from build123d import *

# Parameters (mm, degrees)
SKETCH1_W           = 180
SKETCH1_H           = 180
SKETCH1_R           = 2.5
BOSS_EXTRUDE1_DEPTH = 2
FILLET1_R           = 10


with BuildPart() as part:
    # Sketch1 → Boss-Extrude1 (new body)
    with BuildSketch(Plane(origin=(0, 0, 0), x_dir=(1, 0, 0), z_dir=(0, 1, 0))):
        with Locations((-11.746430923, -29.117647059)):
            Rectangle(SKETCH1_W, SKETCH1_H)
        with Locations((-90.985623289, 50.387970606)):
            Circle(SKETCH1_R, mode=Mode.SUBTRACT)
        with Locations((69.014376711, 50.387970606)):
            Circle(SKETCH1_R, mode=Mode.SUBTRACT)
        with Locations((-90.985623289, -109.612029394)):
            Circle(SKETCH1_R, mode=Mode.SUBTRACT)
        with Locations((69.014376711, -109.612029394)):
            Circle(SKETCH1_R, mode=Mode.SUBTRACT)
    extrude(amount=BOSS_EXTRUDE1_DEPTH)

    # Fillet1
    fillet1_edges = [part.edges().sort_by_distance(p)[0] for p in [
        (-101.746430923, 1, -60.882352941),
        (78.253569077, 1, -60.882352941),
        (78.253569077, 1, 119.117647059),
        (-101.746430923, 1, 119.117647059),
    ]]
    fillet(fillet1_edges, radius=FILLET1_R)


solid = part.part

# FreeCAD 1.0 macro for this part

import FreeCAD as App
import Part
import Sketcher
from FreeCAD import Vector
Q = App.Units.Quantity


def edges_at(feature, points):
    """Names of the edges that pass closest to the given points."""
    edges = feature.Shape.Edges
    near = lambda p: min(range(len(edges)), key=lambda i: edges[i].distToShape(Part.Vertex(*p))[0])
    return sorted({f"Edge{near(p) + 1}" for p in points})


def add_polygon(sketch, points):
    """Adds a closed chain of lines whose ends are joined by coincident constraints."""
    first, n = sketch.GeometryCount, len(points)
    for a, b in zip(points, points[1:] + points[:1]):
        sketch.addGeometry(Part.LineSegment(App.Vector(*a, 0), App.Vector(*b, 0)), False)
    for i in range(n):
        sketch.addConstraint(Sketcher.Constraint("Coincident", first + i, 2, first + (i + 1) % n, 1))

doc = App.newDocument("Part")
params = doc.addObject("Spreadsheet::Sheet", "Params")
for row, (alias, value) in enumerate([
    ("sketch1_diameter", "5 mm"),
    ("sketch1_width", "180 mm"),
    ("pad1_length", "2 mm"),
    ("fillet_radius", "10 mm"),
], start=1):
    params.set(f"A{row}", alias)
    params.set(f"B{row}", "=" + value)
    params.setAlias(f"B{row}", alias)

body = doc.addObject("PartDesign::Body", "Body")

# Sketch on XZ plane
sketch1 = body.newObject("Sketcher::SketchObject", "Sketch")
sketch1.AttachmentSupport = (doc.getObject("XZ_Plane"), [""])
sketch1.MapMode = "FlatFace"
add_polygon(sketch1, [(-101.746431, -60.882353), (-101.746431, 119.117647), (78.253569, 119.117647), (78.253569, -60.882353)])  # lines 0-3
sketch1.addGeometry(Part.Circle(Vector(-90.985623, 109.612029, 0), Vector(0, 0, 1), 2.5), False)  # 4
sketch1.addGeometry(Part.Circle(Vector(69.014377, 109.612029, 0), Vector(0, 0, 1), 2.5), False)  # 5
sketch1.addGeometry(Part.Circle(Vector(-90.985623, -50.387971, 0), Vector(0, 0, 1), 2.5), False)  # 6
sketch1.addGeometry(Part.Circle(Vector(69.014377, -50.387971, 0), Vector(0, 0, 1), 2.5), False)  # 7
sketch1.addConstraint([
    Sketcher.Constraint("Vertical", 0),
    Sketcher.Constraint("Horizontal", 1),
    Sketcher.Constraint("Vertical", 2),
    Sketcher.Constraint("Horizontal", 3),
    Sketcher.Constraint("Equal", 4, 5),
    Sketcher.Constraint("Equal", 5, 6),
    Sketcher.Constraint("Equal", 6, 7),
    Sketcher.Constraint("Horizontal", 4, 3, 5, 3),
    Sketcher.Constraint("Horizontal", 6, 3, 7, 3),
    Sketcher.Constraint("Vertical", 4, 3, 6, 3),
    Sketcher.Constraint("Vertical", 5, 3, 7, 3),
    Sketcher.Constraint("Equal", 3, 0),
    Sketcher.Constraint("Diameter", 4, Q("5 mm")),
    Sketcher.Constraint("DistanceX", 1, 1, 1, 2, Q("180 mm")),
    Sketcher.Constraint("DistanceX", 4, 3, 5, 3, Q("160 mm")),
    Sketcher.Constraint("DistanceY", 6, 3, 4, 3, Q("160 mm")),
    Sketcher.Constraint("DistanceY", -1, 1, 4, 3, Q("109.612029 mm")),
    Sketcher.Constraint("DistanceX", 0, 2, -1, 1, Q("101.746431 mm")),
    Sketcher.Constraint("DistanceX", 4, 3, -1, 1, Q("90.985623 mm")),
    Sketcher.Constraint("DistanceY", -1, 1, 0, 2, Q("119.117647 mm")),
])
sketch1.setExpression("Constraints[16]", "Params.sketch1_diameter")
sketch1.setExpression("Constraints[17]", "Params.sketch1_width")
pad1 = body.newObject("PartDesign::Pad", "Pad")
pad1.Profile = sketch1
pad1.setExpression("Length", "Params.pad1_length")
pad1.Reversed = True
doc.recompute()

fillet = body.newObject("PartDesign::Fillet", "Fillet")
fillet.Base = (pad1, edges_at(pad1, [
    (-101.746, 1, -60.882),
    (78.254, 1, -60.882),
    (78.254, 1, 119.118),
    (-101.746, 1, 119.118),
]))
fillet.setExpression("Radius", "Params.fillet_radius")

doc.recompute()
